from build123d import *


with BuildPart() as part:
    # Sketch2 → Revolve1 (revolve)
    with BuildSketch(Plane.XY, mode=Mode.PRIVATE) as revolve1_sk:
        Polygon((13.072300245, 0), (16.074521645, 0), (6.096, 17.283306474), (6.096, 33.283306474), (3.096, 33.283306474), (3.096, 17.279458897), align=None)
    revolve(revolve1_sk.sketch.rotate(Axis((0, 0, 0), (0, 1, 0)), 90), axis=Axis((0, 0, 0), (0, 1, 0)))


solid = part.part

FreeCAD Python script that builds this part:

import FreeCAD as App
import Part
import Sketcher

V = App.Vector
Q = App.Units.Quantity

doc = App.newDocument("Part")
body = doc.addObject("PartDesign::Body", "Body")

# Sketch on XY plane
sketch1 = body.newObject("Sketcher::SketchObject", "Sketch")
sketch1.AttachmentSupport = (doc.getObject("XY_Plane"), [""])
sketch1.MapMode = "FlatFace"
sketch1.addGeometry(Part.LineSegment(V(13.1, 0, 0), V(16.1, 0, 0)), False)
sketch1.addGeometry(Part.LineSegment(V(16.1, 0, 0), V(6.1, 17.3, 0)), False)
sketch1.addGeometry(Part.LineSegment(V(6.1, 17.3, 0), V(6.1, 33.3, 0)), False)
sketch1.addGeometry(Part.LineSegment(V(6.1, 33.3, 0), V(3.1, 33.3, 0)), False)
sketch1.addGeometry(Part.LineSegment(V(3.1, 33.3, 0), V(3.1, 17.3, 0)), False)
sketch1.addGeometry(Part.LineSegment(V(3.1, 17.3, 0), V(13.1, 0, 0)), False)
sketch1.addConstraint(Sketcher.Constraint("Coincident", 0, 2, 1, 1))
sketch1.addConstraint(Sketcher.Constraint("Coincident", 1, 2, 2, 1))
sketch1.addConstraint(Sketcher.Constraint("Coincident", 2, 2, 3, 1))
sketch1.addConstraint(Sketcher.Constraint("Coincident", 3, 2, 4, 1))
sketch1.addConstraint(Sketcher.Constraint("Coincident", 4, 2, 5, 1))
sketch1.addConstraint(Sketcher.Constraint("Coincident", 5, 2, 0, 1))
sketch1.addConstraint(Sketcher.Constraint("Horizontal", 0))
sketch1.addConstraint(Sketcher.Constraint("Vertical", 2))
sketch1.addConstraint(Sketcher.Constraint("Horizontal", 3))
sketch1.addConstraint(Sketcher.Constraint("Vertical", 4))
sketch1.addConstraint(Sketcher.Constraint("PointOnObject", 0, 2, -1))
sketch1.addConstraint(Sketcher.Constraint("Parallel", 1, 5))
sketch1.addConstraint(Sketcher.Constraint("DistanceX", 3, 2, 3, 1, Q("3 mm")))
sketch1.addConstraint(Sketcher.Constraint("DistanceY", 2, 1, 2, 2, Q("16 mm")))
sketch1.addConstraint(Sketcher.Constraint("Angle", 1, Q("120 deg")))
sketch1.addConstraint(Sketcher.Constraint("DistanceX", -1, 1, 1, 2, Q("6.096 mm")))
sketch1.addConstraint(Sketcher.Constraint("Distance", 5, Q("19.9526 mm")))
sketch1.addConstraint(Sketcher.Constraint("DistanceX", 0, 1, 0, 2, Q("3.002221 mm")))
revolution = body.newObject("PartDesign::Revolution", "Revolution")
revolution.Profile = sketch1
revolution.ReferenceAxis = (sketch1, ["V_Axis"])
revolution.Angle = 360

doc.recompute()
